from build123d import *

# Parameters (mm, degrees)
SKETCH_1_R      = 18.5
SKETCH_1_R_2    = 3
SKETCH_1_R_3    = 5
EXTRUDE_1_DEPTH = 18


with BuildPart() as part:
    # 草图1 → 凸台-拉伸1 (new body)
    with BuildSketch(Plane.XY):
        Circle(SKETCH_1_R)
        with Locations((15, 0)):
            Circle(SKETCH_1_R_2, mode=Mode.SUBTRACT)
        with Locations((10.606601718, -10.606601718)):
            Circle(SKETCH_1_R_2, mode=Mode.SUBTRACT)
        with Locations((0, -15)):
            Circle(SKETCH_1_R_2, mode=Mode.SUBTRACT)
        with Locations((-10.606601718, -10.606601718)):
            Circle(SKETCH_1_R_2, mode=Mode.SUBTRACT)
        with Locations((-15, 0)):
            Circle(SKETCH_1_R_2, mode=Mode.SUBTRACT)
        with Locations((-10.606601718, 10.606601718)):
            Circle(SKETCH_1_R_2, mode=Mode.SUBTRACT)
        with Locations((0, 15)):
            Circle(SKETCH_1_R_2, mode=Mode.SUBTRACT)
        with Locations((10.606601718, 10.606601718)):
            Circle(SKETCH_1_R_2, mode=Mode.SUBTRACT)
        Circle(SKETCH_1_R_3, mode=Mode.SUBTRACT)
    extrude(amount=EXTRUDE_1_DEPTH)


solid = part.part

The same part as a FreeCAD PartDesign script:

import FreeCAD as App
import Part
import Sketcher
from FreeCAD import Vector

doc = App.newDocument("Part")
body = doc.addObject("PartDesign::Body", "Body")

sketch1 = body.newObject("Sketcher::SketchObject", "Sketch")
sketch1.AttachmentSupport = (doc.getObject("XY_Plane"), [""])
sketch1.MapMode = "FlatFace"
sketch1.addGeometry([
    Part.Circle(Vector(0, 0, 0), Vector(0, 0, 1), 18.5),
    Part.Circle(Vector(-10.6, -10.6, 0), Vector(0, 0, 1), 3),
    Part.Circle(Vector(0, -15, 0), Vector(0, 0, 1), 3),
    Part.Circle(Vector(10.6, -10.6, 0), Vector(0, 0, 1), 3),
    Part.Circle(Vector(-15, 0, 0), Vector(0, 0, 1), 3),
    Part.Circle(Vector(-10.6, 10.6, 0), Vector(0, 0, 1), 3),
    Part.Circle(Vector(0, 0, 0), Vector(0, 0, 1), 5),
    Part.Circle(Vector(15, 0, 0), Vector(0, 0, 1), 3),
    Part.Circle(Vector(0, 15, 0), Vector(0, 0, 1), 3),
    Part.Circle(Vector(10.6, 10.6, 0), Vector(0, 0, 1), 3),
], False)
sketch1.addConstraint([
    Sketcher.Constraint("Coincident", 0, 3, -1, 1),
    Sketcher.Constraint("Coincident", 6, 3, -1, 1),
    Sketcher.Constraint("Equal", 1, 2),
    Sketcher.Constraint("Equal", 2, 3),
    Sketcher.Constraint("Equal", 3, 4),
    Sketcher.Constraint("Equal", 4, 5),
    Sketcher.Constraint("Equal", 5, 7),
    Sketcher.Constraint("Equal", 7, 8),
    Sketcher.Constraint("Equal", 8, 9),
    Sketcher.Constraint("Symmetric", 3, 3, 5, 3, -1, 1),
    Sketcher.Constraint("Symmetric", 4, 3, 7, 3, -1, 1),
    Sketcher.Constraint("Symmetric", 2, 3, 8, 3, -1, 1),
    Sketcher.Constraint("Symmetric", 1, 3, 9, 3, -1, 1),
    Sketcher.Constraint("Symmetric", 1, 3, 3, 3, -2),
    Sketcher.Constraint("PointOnObject", 2, 3, -2),
    Sketcher.Constraint("PointOnObject", 4, 3, -1),
    Sketcher.Constraint("Diameter", 0, 37.0),
    Sketcher.Constraint("Diameter", 1, 6.0),
    Sketcher.Constraint("Diameter", 6, 10.0),
    Sketcher.Constraint("DistanceY", 2, 3, -1, 1, 15.0),
    Sketcher.Constraint("DistanceX", 4, 3, -1, 1, 15.0),
    Sketcher.Constraint("DistanceX", 1, 3, -1, 1, 10.606602),
    Sketcher.Constraint("DistanceY", 1, 3, -1, 1, 10.606602),
])
pad1 = body.newObject("PartDesign::Pad", "Pad")
pad1.Profile = sketch1
pad1.Length = 18

doc.recompute()
